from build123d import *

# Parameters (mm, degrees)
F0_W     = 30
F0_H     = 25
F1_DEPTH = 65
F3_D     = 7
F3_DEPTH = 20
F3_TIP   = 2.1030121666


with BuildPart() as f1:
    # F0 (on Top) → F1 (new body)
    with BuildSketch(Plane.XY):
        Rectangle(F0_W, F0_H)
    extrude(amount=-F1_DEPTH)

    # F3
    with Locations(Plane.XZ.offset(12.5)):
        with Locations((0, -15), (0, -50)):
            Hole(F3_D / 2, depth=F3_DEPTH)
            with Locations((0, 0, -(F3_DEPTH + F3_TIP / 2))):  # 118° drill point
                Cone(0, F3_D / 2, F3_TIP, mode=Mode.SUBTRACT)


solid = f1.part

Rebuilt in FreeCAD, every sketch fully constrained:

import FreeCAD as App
import Part
import Sketcher
from FreeCAD import Vector
Q = App.Units.Quantity

doc = App.newDocument("Part")
body = doc.addObject("PartDesign::Body", "Body")

# Sketch on XY plane
sketch1 = doc.addObject("Sketcher::SketchObject", "Sketch")
body.addObject(sketch1)
sketch1.AttachmentSupport = (doc.XY_Plane, [""])
sketch1.MapMode = "FlatFace"
sketch1.addGeometry([
    Part.LineSegment(Vector(-15, 12, 0), Vector(-15, -12, 0)),
    Part.LineSegment(Vector(-15, -12, 0), Vector(15, -12, 0)),
    Part.LineSegment(Vector(15, -12, 0), Vector(15, 12, 0)),
    Part.LineSegment(Vector(15, 12, 0), Vector(-15, 12, 0)),
], False)
sketch1.addConstraint([
    Sketcher.Constraint("Coincident", 0, 2, 1, 1),
    Sketcher.Constraint("Coincident", 1, 2, 2, 1),
    Sketcher.Constraint("Coincident", 2, 2, 3, 1),
    Sketcher.Constraint("Coincident", 3, 2, 0, 1),
    Sketcher.Constraint("Vertical", 0),
    Sketcher.Constraint("Horizontal", 1),
    Sketcher.Constraint("Vertical", 2),
    Sketcher.Constraint("Horizontal", 3),
    Sketcher.Constraint("Symmetric", 0, 2, 2, 2, -1, 1),
    Sketcher.Constraint("DistanceX", 1, 1, 1, 2, Q("30 mm")),
    Sketcher.Constraint("DistanceY", 0, 2, 0, 1, Q("25 mm")),
])
pad1 = doc.addObject("PartDesign::Pad", "Pad")
body.addObject(pad1)
pad1.Profile = sketch1
pad1.Length = 65
pad1.Reversed = True

# Sketch on XZ plane
sketch2 = doc.addObject("Sketcher::SketchObject", "Sketch001")
body.addObject(sketch2)
sketch2.AttachmentSupport = (doc.XZ_Plane, [""])
sketch2.MapMode = "FlatFace"
sketch2.AttachmentOffset = App.Placement(Vector(0, 0, 12.5), App.Rotation())
sketch2.addGeometry([
    Part.Circle(Vector(0, -15, 0), Vector(0, 0, 1), 3.5),
    Part.Circle(Vector(0, -50, 0), Vector(0, 0, 1), 3.5),
], False)
sketch2.addConstraint([
    Sketcher.Constraint("Equal", 0, 1),
    Sketcher.Constraint("PointOnObject", 0, 3, -2),
    Sketcher.Constraint("PointOnObject", 1, 3, -2),
    Sketcher.Constraint("Diameter", 0, Q("7 mm")),
    Sketcher.Constraint("DistanceY", 0, 3, -1, 1, Q("15 mm")),
    Sketcher.Constraint("DistanceY", 1, 3, -1, 1, Q("50 mm")),
])
doc.recompute()
hole = doc.addObject("PartDesign::Hole", "Hole")
body.addObject(hole)
hole.Profile = sketch2
hole.ThreadType = "None"
hole.Diameter = 7
hole.DepthType = "Dimension"
hole.Depth = 20
hole.DrillPoint = "Angled"
hole.DrillPointAngle = 118

doc.recompute()
